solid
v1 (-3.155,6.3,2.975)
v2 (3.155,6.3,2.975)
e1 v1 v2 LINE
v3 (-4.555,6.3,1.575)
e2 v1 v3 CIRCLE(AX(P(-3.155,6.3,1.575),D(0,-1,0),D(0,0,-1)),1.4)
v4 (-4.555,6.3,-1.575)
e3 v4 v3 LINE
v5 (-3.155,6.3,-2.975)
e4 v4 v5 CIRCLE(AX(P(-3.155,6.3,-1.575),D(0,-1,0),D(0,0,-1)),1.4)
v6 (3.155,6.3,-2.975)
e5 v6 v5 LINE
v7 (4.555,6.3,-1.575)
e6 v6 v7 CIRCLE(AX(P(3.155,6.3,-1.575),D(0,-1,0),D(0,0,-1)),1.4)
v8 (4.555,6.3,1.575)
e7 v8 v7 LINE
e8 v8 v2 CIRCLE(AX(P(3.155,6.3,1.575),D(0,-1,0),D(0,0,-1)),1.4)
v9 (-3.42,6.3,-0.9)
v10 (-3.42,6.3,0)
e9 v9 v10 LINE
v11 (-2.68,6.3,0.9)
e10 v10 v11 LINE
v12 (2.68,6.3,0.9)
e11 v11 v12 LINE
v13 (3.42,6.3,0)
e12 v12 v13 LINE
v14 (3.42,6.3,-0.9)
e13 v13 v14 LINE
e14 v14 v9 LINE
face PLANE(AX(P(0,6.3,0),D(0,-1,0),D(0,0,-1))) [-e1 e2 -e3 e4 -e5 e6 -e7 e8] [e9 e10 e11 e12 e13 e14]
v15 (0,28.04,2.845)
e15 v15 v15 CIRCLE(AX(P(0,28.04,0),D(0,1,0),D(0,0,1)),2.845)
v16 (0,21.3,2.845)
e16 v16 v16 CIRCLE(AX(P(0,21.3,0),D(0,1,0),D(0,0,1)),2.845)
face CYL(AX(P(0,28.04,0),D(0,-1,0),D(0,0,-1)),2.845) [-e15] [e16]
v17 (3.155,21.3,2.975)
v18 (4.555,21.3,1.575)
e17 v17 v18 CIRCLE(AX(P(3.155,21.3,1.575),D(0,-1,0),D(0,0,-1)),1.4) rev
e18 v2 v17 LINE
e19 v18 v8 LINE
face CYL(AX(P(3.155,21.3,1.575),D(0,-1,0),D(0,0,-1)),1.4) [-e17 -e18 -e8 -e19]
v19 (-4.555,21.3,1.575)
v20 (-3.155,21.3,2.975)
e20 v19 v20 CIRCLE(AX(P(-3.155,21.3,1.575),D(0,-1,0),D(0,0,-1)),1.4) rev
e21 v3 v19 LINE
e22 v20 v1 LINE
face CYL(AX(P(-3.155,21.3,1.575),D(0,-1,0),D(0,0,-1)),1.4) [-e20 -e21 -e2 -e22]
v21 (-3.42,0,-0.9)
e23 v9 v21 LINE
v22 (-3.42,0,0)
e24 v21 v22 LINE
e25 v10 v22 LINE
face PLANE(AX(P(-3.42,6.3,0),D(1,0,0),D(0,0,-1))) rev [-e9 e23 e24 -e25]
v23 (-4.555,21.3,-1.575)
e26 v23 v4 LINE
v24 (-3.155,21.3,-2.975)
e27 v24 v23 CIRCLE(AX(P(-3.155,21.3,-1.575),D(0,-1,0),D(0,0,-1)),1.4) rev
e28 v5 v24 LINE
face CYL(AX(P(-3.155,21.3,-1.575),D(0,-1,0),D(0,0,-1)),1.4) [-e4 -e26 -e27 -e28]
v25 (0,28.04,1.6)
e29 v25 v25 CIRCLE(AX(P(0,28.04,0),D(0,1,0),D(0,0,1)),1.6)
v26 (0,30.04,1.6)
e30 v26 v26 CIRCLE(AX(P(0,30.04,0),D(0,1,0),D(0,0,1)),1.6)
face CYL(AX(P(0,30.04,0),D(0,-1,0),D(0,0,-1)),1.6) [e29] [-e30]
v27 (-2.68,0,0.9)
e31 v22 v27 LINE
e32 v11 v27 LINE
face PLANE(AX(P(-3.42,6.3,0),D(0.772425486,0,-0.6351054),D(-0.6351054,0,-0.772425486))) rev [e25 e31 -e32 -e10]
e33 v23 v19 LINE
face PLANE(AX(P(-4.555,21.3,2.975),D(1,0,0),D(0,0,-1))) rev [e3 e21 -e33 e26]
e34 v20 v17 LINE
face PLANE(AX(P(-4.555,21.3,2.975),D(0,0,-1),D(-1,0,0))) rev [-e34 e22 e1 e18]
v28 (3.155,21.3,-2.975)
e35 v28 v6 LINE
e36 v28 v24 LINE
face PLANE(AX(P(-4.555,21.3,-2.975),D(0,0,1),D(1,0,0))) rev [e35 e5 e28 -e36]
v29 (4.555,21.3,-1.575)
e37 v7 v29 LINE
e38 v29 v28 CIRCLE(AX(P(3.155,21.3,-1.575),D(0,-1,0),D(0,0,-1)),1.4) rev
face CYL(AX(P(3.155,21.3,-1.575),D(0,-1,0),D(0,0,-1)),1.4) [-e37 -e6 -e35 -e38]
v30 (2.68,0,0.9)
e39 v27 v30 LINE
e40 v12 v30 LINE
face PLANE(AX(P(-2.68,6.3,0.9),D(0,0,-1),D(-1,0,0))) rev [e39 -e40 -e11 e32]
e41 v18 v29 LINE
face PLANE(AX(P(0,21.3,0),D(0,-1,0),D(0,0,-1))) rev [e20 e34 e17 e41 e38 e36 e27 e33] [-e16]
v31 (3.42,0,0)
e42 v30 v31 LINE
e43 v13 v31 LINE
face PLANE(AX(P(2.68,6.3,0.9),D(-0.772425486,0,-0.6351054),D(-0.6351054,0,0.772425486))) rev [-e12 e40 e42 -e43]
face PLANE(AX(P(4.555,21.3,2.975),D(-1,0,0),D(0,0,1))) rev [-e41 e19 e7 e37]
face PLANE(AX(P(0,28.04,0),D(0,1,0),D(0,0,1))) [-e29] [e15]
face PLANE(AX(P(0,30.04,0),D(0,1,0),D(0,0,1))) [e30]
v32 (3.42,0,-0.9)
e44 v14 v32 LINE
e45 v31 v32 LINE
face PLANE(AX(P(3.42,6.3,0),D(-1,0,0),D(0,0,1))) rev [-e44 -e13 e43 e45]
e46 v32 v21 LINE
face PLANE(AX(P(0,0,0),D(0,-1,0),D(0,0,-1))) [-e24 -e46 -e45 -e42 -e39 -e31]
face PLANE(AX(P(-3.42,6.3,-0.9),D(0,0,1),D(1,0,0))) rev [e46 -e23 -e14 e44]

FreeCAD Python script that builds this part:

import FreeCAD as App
import Part
import Sketcher
from FreeCAD import Vector
Q = App.Units.Quantity


def edges_at(feature, points):
    """Names of the edges that pass closest to the given points."""
    edges = feature.Shape.Edges
    near = lambda p: min(range(len(edges)), key=lambda i: edges[i].distToShape(Part.Vertex(*p))[0])
    return sorted({f"Edge{near(p) + 1}" for p in points})

doc = App.newDocument("Part")
body = doc.addObject("PartDesign::Body", "Body")

# Sketch on XZ plane
sketch1 = body.newObject("Sketcher::SketchObject", "Sketch")
sketch1.AttachmentSupport = (doc.getObject("XZ_Plane"), [""])
sketch1.MapMode = "FlatFace"
sketch1.addGeometry([
    Part.LineSegment(Vector(-3.42, 0, 0), Vector(-2.68, 0.9, 0)),  # 0
    Part.LineSegment(Vector(-2.68, 0.9, 0), Vector(2.68, 0.9, 0)),  # 1
    Part.LineSegment(Vector(2.68, 0.9, 0), Vector(3.42, 0, 0)),  # 2
    Part.LineSegment(Vector(3.42, 0, 0), Vector(3.42, -0.9, 0)),  # 3
    Part.LineSegment(Vector(3.42, -0.9, 0), Vector(-3.42, -0.9, 0)),  # 4
    Part.LineSegment(Vector(-3.42, -0.9, 0), Vector(-3.42, 0, 0)),  # 5
], False)
sketch1.addConstraint([
    Sketcher.Constraint("Coincident", 0, 2, 1, 1),
    Sketcher.Constraint("Coincident", 1, 2, 2, 1),
    Sketcher.Constraint("Coincident", 2, 2, 3, 1),
    Sketcher.Constraint("Coincident", 3, 2, 4, 1),
    Sketcher.Constraint("Coincident", 4, 2, 5, 1),
    Sketcher.Constraint("Coincident", 5, 2, 0, 1),
    Sketcher.Constraint("Horizontal", 1),
    Sketcher.Constraint("Vertical", 3),
    Sketcher.Constraint("Horizontal", 4),
    Sketcher.Constraint("Vertical", 5),
    Sketcher.Constraint("Symmetric", 2, 2, 5, 2, -1, 1),
    Sketcher.Constraint("PointOnObject", 2, 2, -1),
    Sketcher.Constraint("Equal", 0, 2),
    Sketcher.Constraint("DistanceY", 3, 2, 3, 1, Q("0.9 mm")),
    Sketcher.Constraint("DistanceX", 1, 1, 1, 2, Q("5.36 mm")),
    Sketcher.Constraint("DistanceX", 4, 2, 4, 1, Q("6.84 mm")),
    Sketcher.Constraint("DistanceY", -1, 1, 0, 2, Q("0.9 mm")),
])
pad1 = body.newObject("PartDesign::Pad", "Pad")
pad1.Profile = sketch1
pad1.Length = 6.3
pad1.Reversed = True

# Sketch on XZ plane
sketch2 = body.newObject("Sketcher::SketchObject", "Sketch001")
sketch2.AttachmentSupport = (doc.getObject("XZ_Plane"), [""])
sketch2.MapMode = "FlatFace"
sketch2.AttachmentOffset = App.Placement(Vector(0, 0, -6.3), App.Rotation())
sketch2.addGeometry([
    Part.LineSegment(Vector(-4.555, -2.975, 0), Vector(-4.555, 2.975, 0)),
    Part.LineSegment(Vector(-4.555, 2.975, 0), Vector(4.555, 2.975, 0)),
    Part.LineSegment(Vector(4.555, 2.975, 0), Vector(4.555, -2.975, 0)),
    Part.LineSegment(Vector(4.555, -2.975, 0), Vector(-4.555, -2.975, 0)),
], False)
sketch2.addConstraint([
    Sketcher.Constraint("Coincident", 0, 2, 1, 1),
    Sketcher.Constraint("Coincident", 1, 2, 2, 1),
    Sketcher.Constraint("Coincident", 2, 2, 3, 1),
    Sketcher.Constraint("Coincident", 3, 2, 0, 1),
    Sketcher.Constraint("Vertical", 0),
    Sketcher.Constraint("Horizontal", 1),
    Sketcher.Constraint("Vertical", 2),
    Sketcher.Constraint("Horizontal", 3),
    Sketcher.Constraint("Symmetric", 0, 2, 2, 2, -1, 1),
    Sketcher.Constraint("DistanceX", 1, 1, 1, 2, Q("9.11 mm")),
    Sketcher.Constraint("DistanceY", 0, 1, 0, 2, Q("5.95 mm")),
])
pad2 = body.newObject("PartDesign::Pad", "Pad001")
pad2.Profile = sketch2
pad2.Length = 15
pad2.Reversed = True
doc.recompute()

fillet = body.newObject("PartDesign::Fillet", "Fillet")
fillet.Base = (pad2, edges_at(pad2, [
    (4.555, 13.8, 2.975),
    (4.555, 13.8, -2.975),
    (-4.555, 13.8, -2.975),
    (-4.555, 13.8, 2.975),
]))
fillet.Radius = 1.4

# Sketch on XZ plane
sketch3 = body.newObject("Sketcher::SketchObject", "Sketch002")
sketch3.AttachmentSupport = (doc.getObject("XZ_Plane"), [""])
sketch3.MapMode = "FlatFace"
sketch3.AttachmentOffset = App.Placement(Vector(0, 0, -21.3), App.Rotation())
sketch3.addGeometry(Part.Circle(Vector(0, 0, 0), Vector(0, 0, 1), 2.845), False)
sketch3.addConstraint([
    Sketcher.Constraint("Coincident", 0, 3, -1, 1),
    Sketcher.Constraint("Diameter", 0, Q("5.69 mm")),
])
pad3 = body.newObject("PartDesign::Pad", "Pad002")
pad3.Profile = sketch3
pad3.Length = 6.74
pad3.Reversed = True

# Sketch on XZ plane
sketch4 = body.newObject("Sketcher::SketchObject", "Sketch003")
sketch4.AttachmentSupport = (doc.getObject("XZ_Plane"), [""])
sketch4.MapMode = "FlatFace"
sketch4.AttachmentOffset = App.Placement(Vector(0, 0, -28.04), App.Rotation())
sketch4.addGeometry(Part.Circle(Vector(0, 0, 0), Vector(0, 0, 1), 1.6), False)
sketch4.addConstraint([
    Sketcher.Constraint("Coincident", 0, 3, -1, 1),
    Sketcher.Constraint("Diameter", 0, Q("3.2 mm")),
])
pad4 = body.newObject("PartDesign::Pad", "Pad003")
pad4.Profile = sketch4
pad4.Length = 2
pad4.Reversed = True

doc.recompute()
